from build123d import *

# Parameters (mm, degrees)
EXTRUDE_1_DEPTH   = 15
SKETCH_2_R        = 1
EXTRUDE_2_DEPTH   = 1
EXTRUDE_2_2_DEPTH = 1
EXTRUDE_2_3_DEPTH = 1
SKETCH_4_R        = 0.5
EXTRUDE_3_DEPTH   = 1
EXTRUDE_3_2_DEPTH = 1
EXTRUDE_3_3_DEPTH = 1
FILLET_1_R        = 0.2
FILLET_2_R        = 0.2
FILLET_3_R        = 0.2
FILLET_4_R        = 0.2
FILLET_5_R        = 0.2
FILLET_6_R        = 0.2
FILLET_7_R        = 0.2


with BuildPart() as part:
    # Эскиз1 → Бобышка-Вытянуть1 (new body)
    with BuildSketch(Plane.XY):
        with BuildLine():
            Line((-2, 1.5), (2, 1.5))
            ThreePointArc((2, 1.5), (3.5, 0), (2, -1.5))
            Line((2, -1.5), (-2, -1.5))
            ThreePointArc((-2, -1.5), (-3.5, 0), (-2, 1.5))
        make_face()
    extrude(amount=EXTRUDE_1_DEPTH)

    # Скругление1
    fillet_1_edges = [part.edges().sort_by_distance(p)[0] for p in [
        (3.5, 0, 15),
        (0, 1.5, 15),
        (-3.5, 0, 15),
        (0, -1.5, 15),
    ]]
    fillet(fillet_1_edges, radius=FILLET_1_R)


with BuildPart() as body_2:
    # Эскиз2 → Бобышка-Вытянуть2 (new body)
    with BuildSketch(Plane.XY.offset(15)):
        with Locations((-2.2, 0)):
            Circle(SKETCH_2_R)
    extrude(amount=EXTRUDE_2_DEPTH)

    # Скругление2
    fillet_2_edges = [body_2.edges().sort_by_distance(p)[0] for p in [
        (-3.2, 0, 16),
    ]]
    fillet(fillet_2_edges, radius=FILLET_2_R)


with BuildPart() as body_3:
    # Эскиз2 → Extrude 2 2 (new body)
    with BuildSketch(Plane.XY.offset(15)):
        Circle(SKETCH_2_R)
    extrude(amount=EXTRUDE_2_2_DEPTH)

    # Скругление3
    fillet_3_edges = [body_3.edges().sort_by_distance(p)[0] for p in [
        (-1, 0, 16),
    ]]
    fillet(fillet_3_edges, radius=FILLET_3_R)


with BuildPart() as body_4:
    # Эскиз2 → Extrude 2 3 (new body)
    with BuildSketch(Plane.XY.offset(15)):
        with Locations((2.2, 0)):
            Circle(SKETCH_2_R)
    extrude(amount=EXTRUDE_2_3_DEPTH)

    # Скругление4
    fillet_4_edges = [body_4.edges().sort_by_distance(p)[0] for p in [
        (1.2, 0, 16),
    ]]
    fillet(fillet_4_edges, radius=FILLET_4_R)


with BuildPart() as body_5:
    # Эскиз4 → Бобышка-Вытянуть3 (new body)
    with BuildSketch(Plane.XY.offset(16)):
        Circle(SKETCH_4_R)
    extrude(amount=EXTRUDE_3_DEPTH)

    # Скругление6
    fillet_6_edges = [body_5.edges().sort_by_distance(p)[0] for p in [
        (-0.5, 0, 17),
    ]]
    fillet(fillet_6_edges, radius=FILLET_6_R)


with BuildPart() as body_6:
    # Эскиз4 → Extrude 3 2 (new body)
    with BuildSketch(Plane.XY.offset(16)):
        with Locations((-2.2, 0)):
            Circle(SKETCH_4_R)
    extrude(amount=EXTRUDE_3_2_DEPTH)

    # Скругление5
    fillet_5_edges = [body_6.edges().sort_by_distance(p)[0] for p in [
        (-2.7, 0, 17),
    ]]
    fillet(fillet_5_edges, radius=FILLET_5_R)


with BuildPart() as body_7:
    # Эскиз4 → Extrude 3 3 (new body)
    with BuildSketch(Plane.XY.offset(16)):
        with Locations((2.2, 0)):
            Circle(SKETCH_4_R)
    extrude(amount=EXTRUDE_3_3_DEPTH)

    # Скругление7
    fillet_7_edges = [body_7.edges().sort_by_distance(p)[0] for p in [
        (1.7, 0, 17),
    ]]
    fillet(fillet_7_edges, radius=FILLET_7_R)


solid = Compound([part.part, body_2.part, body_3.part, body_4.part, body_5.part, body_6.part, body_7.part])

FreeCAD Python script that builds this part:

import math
import FreeCAD as App
import Part
import Sketcher


def edges_at(feature, points):
    """Names of the edges that pass closest to the given points."""
    edges = feature.Shape.Edges
    near = lambda p: min(range(len(edges)), key=lambda i: edges[i].distToShape(Part.Vertex(*p))[0])
    return sorted({f"Edge{near(p) + 1}" for p in points})

doc = App.newDocument("Part")
body = doc.addObject("PartDesign::Body", "Body")

# Sketch on XY plane
sketch1 = doc.addObject("Sketcher::SketchObject", "Sketch")
body.addObject(sketch1)
sketch1.AttachmentSupport = (doc.XY_Plane, [""])
sketch1.MapMode = "FlatFace"
sketch1.addGeometry([
    Part.LineSegment(App.Vector(2, 1.5, 0), App.Vector(-2, 1.5, 0)),
    Part.ArcOfCircle(Part.Circle(App.Vector(-2, 0, 0), App.Vector(0, 0, 1), 1.5), math.radians(90), math.radians(270)),
    Part.LineSegment(App.Vector(-2, -1.5, 0), App.Vector(2, -1.5, 0)),
    Part.ArcOfCircle(Part.Circle(App.Vector(2, 0, 0), App.Vector(0, 0, 1), 1.5), math.radians(-90), math.radians(90)),
], False)
sketch1.addConstraint([
    Sketcher.Constraint("Tangent", 0, 2, 1, 1),
    Sketcher.Constraint("Tangent", 1, 2, 2, 1),
    Sketcher.Constraint("Tangent", 2, 2, 3, 1),
    Sketcher.Constraint("Tangent", 3, 2, 0, 1),
    Sketcher.Constraint("Horizontal", 0),
    Sketcher.Constraint("Horizontal", 2),
    Sketcher.Constraint("Symmetric", 1, 3, 3, 3, -1, 1),
    Sketcher.Constraint("Radius", 1, 1.5),
    Sketcher.Constraint("DistanceX", 0, 2, 0, 1, 4.0),
])
pad1 = doc.addObject("PartDesign::Pad", "Pad")
body.addObject(pad1)
pad1.Profile = sketch1
pad1.Length = 15
doc.recompute()

fillet = doc.addObject("PartDesign::Fillet", "Fillet")
body.addObject(fillet)
fillet.Base = (pad1, edges_at(pad1, [
    (3.5, 0, 15),
    (0, 1.5, 15),
    (-3.5, 0, 15),
    (0, -1.5, 15),
]))
fillet.Radius = 0.2
body2 = doc.addObject("PartDesign::Body", "Body001")

# Sketch on XY plane
sketch2 = doc.addObject("Sketcher::SketchObject", "Sketch001")
body2.addObject(sketch2)
sketch2.AttachmentSupport = (doc.getObject("XY_Plane001"), [""])
sketch2.MapMode = "FlatFace"
sketch2.AttachmentOffset = App.Placement(App.Vector(0, 0, 15), App.Rotation())
sketch2.addGeometry(Part.Circle(App.Vector(-2.2, 0, 0), App.Vector(0, 0, 1), 1), False)
sketch2.addConstraint([
    Sketcher.Constraint("PointOnObject", 0, 3, -1),
    Sketcher.Constraint("Diameter", 0, 2.0),
    Sketcher.Constraint("DistanceX", 0, 3, -1, 1, 2.2),
])
pad2 = doc.addObject("PartDesign::Pad", "Pad001")
body2.addObject(pad2)
pad2.Profile = sketch2
pad2.Length = 1
doc.recompute()

fillet2 = doc.addObject("PartDesign::Fillet", "Fillet001")
body2.addObject(fillet2)
fillet2.Base = (pad2, edges_at(pad2, [(-3.2, 0, 16)]))
fillet2.Radius = 0.2
body3 = doc.addObject("PartDesign::Body", "Body002")

# Sketch on XY plane
sketch3 = doc.addObject("Sketcher::SketchObject", "Sketch002")
body3.addObject(sketch3)
sketch3.AttachmentSupport = (doc.getObject("XY_Plane002"), [""])
sketch3.MapMode = "FlatFace"
sketch3.AttachmentOffset = App.Placement(App.Vector(0, 0, 15), App.Rotation())
sketch3.addGeometry(Part.Circle(App.Vector(0, 0, 0), App.Vector(0, 0, 1), 1), False)
sketch3.addConstraint([
    Sketcher.Constraint("Coincident", 0, 3, -1, 1),
    Sketcher.Constraint("Diameter", 0, 2.0),
])
pad3 = doc.addObject("PartDesign::Pad", "Pad002")
body3.addObject(pad3)
pad3.Profile = sketch3
pad3.Length = 1
doc.recompute()

fillet3 = doc.addObject("PartDesign::Fillet", "Fillet002")
body3.addObject(fillet3)
fillet3.Base = (pad3, edges_at(pad3, [(-1, 0, 16)]))
fillet3.Radius = 0.2
body4 = doc.addObject("PartDesign::Body", "Body003")

# Sketch on XY plane
sketch4 = doc.addObject("Sketcher::SketchObject", "Sketch003")
body4.addObject(sketch4)
sketch4.AttachmentSupport = (doc.getObject("XY_Plane003"), [""])
sketch4.MapMode = "FlatFace"
sketch4.AttachmentOffset = App.Placement(App.Vector(0, 0, 15), App.Rotation())
sketch4.addGeometry(Part.Circle(App.Vector(2.2, 0, 0), App.Vector(0, 0, 1), 1), False)
sketch4.addConstraint([
    Sketcher.Constraint("PointOnObject", 0, 3, -1),
    Sketcher.Constraint("Diameter", 0, 2.0),
    Sketcher.Constraint("DistanceX", -1, 1, 0, 3, 2.2),
])
pad4 = doc.addObject("PartDesign::Pad", "Pad003")
body4.addObject(pad4)
pad4.Profile = sketch4
pad4.Length = 1
doc.recompute()

fillet4 = doc.addObject("PartDesign::Fillet", "Fillet003")
body4.addObject(fillet4)
fillet4.Base = (pad4, edges_at(pad4, [(1.2, 0, 16)]))
fillet4.Radius = 0.2
body5 = doc.addObject("PartDesign::Body", "Body004")

# Sketch on XY plane
sketch5 = doc.addObject("Sketcher::SketchObject", "Sketch004")
body5.addObject(sketch5)
sketch5.AttachmentSupport = (doc.getObject("XY_Plane004"), [""])
sketch5.MapMode = "FlatFace"
sketch5.AttachmentOffset = App.Placement(App.Vector(0, 0, 16), App.Rotation())
sketch5.addGeometry(Part.Circle(App.Vector(0, 0, 0), App.Vector(0, 0, 1), 0.5), False)
sketch5.addConstraint([
    Sketcher.Constraint("Coincident", 0, 3, -1, 1),
    Sketcher.Constraint("Diameter", 0, 1.0),
])
pad5 = doc.addObject("PartDesign::Pad", "Pad004")
body5.addObject(pad5)
pad5.Profile = sketch5
pad5.Length = 1
doc.recompute()

fillet5 = doc.addObject("PartDesign::Fillet", "Fillet004")
body5.addObject(fillet5)
fillet5.Base = (pad5, edges_at(pad5, [(-0.5, 0, 17)]))
fillet5.Radius = 0.2
body6 = doc.addObject("PartDesign::Body", "Body005")

# Sketch on XY plane
sketch6 = doc.addObject("Sketcher::SketchObject", "Sketch005")
body6.addObject(sketch6)
sketch6.AttachmentSupport = (doc.getObject("XY_Plane005"), [""])
sketch6.MapMode = "FlatFace"
sketch6.AttachmentOffset = App.Placement(App.Vector(0, 0, 16), App.Rotation())
sketch6.addGeometry(Part.Circle(App.Vector(-2.2, 0, 0), App.Vector(0, 0, 1), 0.5), False)
sketch6.addConstraint([
    Sketcher.Constraint("PointOnObject", 0, 3, -1),
    Sketcher.Constraint("Diameter", 0, 1.0),
    Sketcher.Constraint("DistanceX", 0, 3, -1, 1, 2.2),
])
pad6 = doc.addObject("PartDesign::Pad", "Pad005")
body6.addObject(pad6)
pad6.Profile = sketch6
pad6.Length = 1
doc.recompute()

fillet6 = doc.addObject("PartDesign::Fillet", "Fillet005")
body6.addObject(fillet6)
fillet6.Base = (pad6, edges_at(pad6, [(-2.7, 0, 17)]))
fillet6.Radius = 0.2
body7 = doc.addObject("PartDesign::Body", "Body006")

# Sketch on XY plane
sketch7 = doc.addObject("Sketcher::SketchObject", "Sketch006")
body7.addObject(sketch7)
sketch7.AttachmentSupport = (doc.getObject("XY_Plane006"), [""])
sketch7.MapMode = "FlatFace"
sketch7.AttachmentOffset = App.Placement(App.Vector(0, 0, 16), App.Rotation())
sketch7.addGeometry(Part.Circle(App.Vector(2.2, 0, 0), App.Vector(0, 0, 1), 0.5), False)
sketch7.addConstraint([
    Sketcher.Constraint("PointOnObject", 0, 3, -1),
    Sketcher.Constraint("Diameter", 0, 1.0),
    Sketcher.Constraint("DistanceX", -1, 1, 0, 3, 2.2),
])
pad7 = doc.addObject("PartDesign::Pad", "Pad006")
body7.addObject(pad7)
pad7.Profile = sketch7
pad7.Length = 1
doc.recompute()

fillet7 = doc.addObject("PartDesign::Fillet", "Fillet006")
body7.addObject(fillet7)
fillet7.Base = (pad7, edges_at(pad7, [(1.7, 0, 17)]))
fillet7.Radius = 0.2

doc.recompute()
